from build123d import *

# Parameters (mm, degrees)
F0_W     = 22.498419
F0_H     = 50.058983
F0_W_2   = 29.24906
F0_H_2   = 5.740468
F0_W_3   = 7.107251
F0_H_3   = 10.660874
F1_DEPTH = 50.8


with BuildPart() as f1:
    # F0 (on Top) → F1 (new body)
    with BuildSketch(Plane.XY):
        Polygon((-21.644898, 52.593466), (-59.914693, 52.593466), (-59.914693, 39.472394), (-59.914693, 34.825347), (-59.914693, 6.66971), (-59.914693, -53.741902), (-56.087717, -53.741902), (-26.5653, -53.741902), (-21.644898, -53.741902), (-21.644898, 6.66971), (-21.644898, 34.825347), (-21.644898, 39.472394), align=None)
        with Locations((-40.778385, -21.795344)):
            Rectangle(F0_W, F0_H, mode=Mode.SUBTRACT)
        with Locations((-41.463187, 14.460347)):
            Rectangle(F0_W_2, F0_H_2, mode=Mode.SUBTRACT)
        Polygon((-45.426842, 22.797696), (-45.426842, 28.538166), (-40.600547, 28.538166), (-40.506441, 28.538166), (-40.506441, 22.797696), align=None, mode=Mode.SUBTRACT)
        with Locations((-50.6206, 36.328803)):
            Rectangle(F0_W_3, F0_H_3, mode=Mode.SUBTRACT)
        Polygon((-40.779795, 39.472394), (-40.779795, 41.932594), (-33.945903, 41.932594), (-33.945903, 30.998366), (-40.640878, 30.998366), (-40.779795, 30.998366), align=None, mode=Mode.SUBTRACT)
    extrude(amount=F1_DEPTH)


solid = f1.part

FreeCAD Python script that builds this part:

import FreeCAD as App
import Part
import Sketcher
Q = App.Units.Quantity


def add_polygon(sketch, points):
    """Adds a closed chain of lines whose ends are joined by coincident constraints."""
    first, n = sketch.GeometryCount, len(points)
    for a, b in zip(points, points[1:] + points[:1]):
        sketch.addGeometry(Part.LineSegment(App.Vector(*a, 0), App.Vector(*b, 0)), False)
    for i in range(n):
        sketch.addConstraint(Sketcher.Constraint("Coincident", first + i, 2, first + (i + 1) % n, 1))

doc = App.newDocument("Part")
body = doc.addObject("PartDesign::Body", "Body")

# Sketch on XY plane
sketch1 = body.newObject("Sketcher::SketchObject", "Sketch")
sketch1.AttachmentSupport = (doc.getObject("XY_Plane"), [""])
sketch1.MapMode = "FlatFace"
add_polygon(sketch1, [(-21.6, 52.6), (-59.9, 52.6), (-59.9, -53.7), (-21.6, -53.7)])  # lines 0-3
add_polygon(sketch1, [(-29.5, -46.8), (-52, -46.8), (-52, 3.2), (-29.5, 3.2)])  # lines 4-7
add_polygon(sketch1, [(-47.1, 31), (-54.2, 31), (-54.2, 41.7), (-47.1, 41.7)])  # lines 8-11
add_polygon(sketch1, [(-40.5, 22.8), (-45.4, 22.8), (-45.4, 28.5), (-40.5, 28.5)])  # lines 12-15
add_polygon(sketch1, [(-26.8, 11.6), (-56.1, 11.6), (-56.1, 17.3), (-26.8, 17.3)])  # lines 16-19
add_polygon(sketch1, [(-40.8, 31), (-40.8, 41.9), (-33.9, 41.9), (-33.9, 31)])  # lines 20-23
sketch1.addConstraint(Sketcher.Constraint("Horizontal", 0))
sketch1.addConstraint(Sketcher.Constraint("Vertical", 1))
sketch1.addConstraint(Sketcher.Constraint("Horizontal", 2))
sketch1.addConstraint(Sketcher.Constraint("Vertical", 3))
sketch1.addConstraint(Sketcher.Constraint("Horizontal", 4))
sketch1.addConstraint(Sketcher.Constraint("Vertical", 5))
sketch1.addConstraint(Sketcher.Constraint("Horizontal", 6))
sketch1.addConstraint(Sketcher.Constraint("Vertical", 7))
sketch1.addConstraint(Sketcher.Constraint("Horizontal", 8))
sketch1.addConstraint(Sketcher.Constraint("Vertical", 9))
sketch1.addConstraint(Sketcher.Constraint("Horizontal", 10))
sketch1.addConstraint(Sketcher.Constraint("Vertical", 11))
sketch1.addConstraint(Sketcher.Constraint("Horizontal", 12))
sketch1.addConstraint(Sketcher.Constraint("Vertical", 13))
sketch1.addConstraint(Sketcher.Constraint("Horizontal", 14))
sketch1.addConstraint(Sketcher.Constraint("Vertical", 15))
sketch1.addConstraint(Sketcher.Constraint("Horizontal", 16))
sketch1.addConstraint(Sketcher.Constraint("Vertical", 17))
sketch1.addConstraint(Sketcher.Constraint("Horizontal", 18))
sketch1.addConstraint(Sketcher.Constraint("Vertical", 19))
sketch1.addConstraint(Sketcher.Constraint("Vertical", 20))
sketch1.addConstraint(Sketcher.Constraint("Horizontal", 21))
sketch1.addConstraint(Sketcher.Constraint("Vertical", 22))
sketch1.addConstraint(Sketcher.Constraint("Horizontal", 23))
sketch1.addConstraint(Sketcher.Constraint("Horizontal", 11, 2, 22, 2))
sketch1.addConstraint(Sketcher.Constraint("DistanceX", 12, 2, 12, 1, 4.920401))
sketch1.addConstraint(Sketcher.Constraint("DistanceX", 5, 2, 10, 2, Q("0.1953 in")))
sketch1.addConstraint(Sketcher.Constraint("DistanceX", 4, 2, 4, 1, 22.498419))
sketch1.addConstraint(Sketcher.Constraint("DistanceX", 8, 2, 8, 1, 7.107251))
sketch1.addConstraint(Sketcher.Constraint("DistanceX", 16, 2, 16, 1, 29.24906))
sketch1.addConstraint(Sketcher.Constraint("DistanceX", 21, 1, 21, 2, 6.833892))
sketch1.addConstraint(Sketcher.Constraint("DistanceY", 1, 2, 1, 1, 106.335368))
sketch1.addConstraint(Sketcher.Constraint("DistanceY", 13, 1, 13, 2, 5.74047))
sketch1.addConstraint(Sketcher.Constraint("DistanceY", 20, 1, 20, 2, 10.934228))
sketch1.addConstraint(Sketcher.Constraint("DistanceX", 2, 2, -1, 1, 21.644898))
sketch1.addConstraint(Sketcher.Constraint("DistanceX", 1, 2, 4, 2, 7.887099))
sketch1.addConstraint(Sketcher.Constraint("DistanceY", 4, 2, 0, 2, 99.418301))
sketch1.addConstraint(Sketcher.Constraint("DistanceY", 8, 2, 0, 2, 21.5951))
sketch1.addConstraint(Sketcher.Constraint("DistanceY", 13, 2, 11, 2, 2.4602))
sketch1.addConstraint(Sketcher.Constraint("DistanceX", 0, 2, 0, 1, 38.269795))
sketch1.addConstraint(Sketcher.Constraint("DistanceY", 5, 1, 5, 2, 50.058983))
sketch1.addConstraint(Sketcher.Constraint("DistanceY", 9, 1, 9, 2, 10.660874))
sketch1.addConstraint(Sketcher.Constraint("DistanceY", 17, 1, 17, 2, 5.740468))
sketch1.addConstraint(Sketcher.Constraint("DistanceY", -1, 1, 9, 2, 41.65924))
sketch1.addConstraint(Sketcher.Constraint("DistanceX", 14, 2, -1, 1, 40.506441))
sketch1.addConstraint(Sketcher.Constraint("DistanceY", -1, 1, 17, 2, 17.330581))
sketch1.addConstraint(Sketcher.Constraint("DistanceX", 16, 2, 8, 2, 1.913491))
sketch1.addConstraint(Sketcher.Constraint("DistanceX", 10, 2, 20, 2, 6.28718))
pad1 = body.newObject("PartDesign::Pad", "Pad")
pad1.Profile = sketch1
pad1.Length = Q("2 in")

doc.recompute()
